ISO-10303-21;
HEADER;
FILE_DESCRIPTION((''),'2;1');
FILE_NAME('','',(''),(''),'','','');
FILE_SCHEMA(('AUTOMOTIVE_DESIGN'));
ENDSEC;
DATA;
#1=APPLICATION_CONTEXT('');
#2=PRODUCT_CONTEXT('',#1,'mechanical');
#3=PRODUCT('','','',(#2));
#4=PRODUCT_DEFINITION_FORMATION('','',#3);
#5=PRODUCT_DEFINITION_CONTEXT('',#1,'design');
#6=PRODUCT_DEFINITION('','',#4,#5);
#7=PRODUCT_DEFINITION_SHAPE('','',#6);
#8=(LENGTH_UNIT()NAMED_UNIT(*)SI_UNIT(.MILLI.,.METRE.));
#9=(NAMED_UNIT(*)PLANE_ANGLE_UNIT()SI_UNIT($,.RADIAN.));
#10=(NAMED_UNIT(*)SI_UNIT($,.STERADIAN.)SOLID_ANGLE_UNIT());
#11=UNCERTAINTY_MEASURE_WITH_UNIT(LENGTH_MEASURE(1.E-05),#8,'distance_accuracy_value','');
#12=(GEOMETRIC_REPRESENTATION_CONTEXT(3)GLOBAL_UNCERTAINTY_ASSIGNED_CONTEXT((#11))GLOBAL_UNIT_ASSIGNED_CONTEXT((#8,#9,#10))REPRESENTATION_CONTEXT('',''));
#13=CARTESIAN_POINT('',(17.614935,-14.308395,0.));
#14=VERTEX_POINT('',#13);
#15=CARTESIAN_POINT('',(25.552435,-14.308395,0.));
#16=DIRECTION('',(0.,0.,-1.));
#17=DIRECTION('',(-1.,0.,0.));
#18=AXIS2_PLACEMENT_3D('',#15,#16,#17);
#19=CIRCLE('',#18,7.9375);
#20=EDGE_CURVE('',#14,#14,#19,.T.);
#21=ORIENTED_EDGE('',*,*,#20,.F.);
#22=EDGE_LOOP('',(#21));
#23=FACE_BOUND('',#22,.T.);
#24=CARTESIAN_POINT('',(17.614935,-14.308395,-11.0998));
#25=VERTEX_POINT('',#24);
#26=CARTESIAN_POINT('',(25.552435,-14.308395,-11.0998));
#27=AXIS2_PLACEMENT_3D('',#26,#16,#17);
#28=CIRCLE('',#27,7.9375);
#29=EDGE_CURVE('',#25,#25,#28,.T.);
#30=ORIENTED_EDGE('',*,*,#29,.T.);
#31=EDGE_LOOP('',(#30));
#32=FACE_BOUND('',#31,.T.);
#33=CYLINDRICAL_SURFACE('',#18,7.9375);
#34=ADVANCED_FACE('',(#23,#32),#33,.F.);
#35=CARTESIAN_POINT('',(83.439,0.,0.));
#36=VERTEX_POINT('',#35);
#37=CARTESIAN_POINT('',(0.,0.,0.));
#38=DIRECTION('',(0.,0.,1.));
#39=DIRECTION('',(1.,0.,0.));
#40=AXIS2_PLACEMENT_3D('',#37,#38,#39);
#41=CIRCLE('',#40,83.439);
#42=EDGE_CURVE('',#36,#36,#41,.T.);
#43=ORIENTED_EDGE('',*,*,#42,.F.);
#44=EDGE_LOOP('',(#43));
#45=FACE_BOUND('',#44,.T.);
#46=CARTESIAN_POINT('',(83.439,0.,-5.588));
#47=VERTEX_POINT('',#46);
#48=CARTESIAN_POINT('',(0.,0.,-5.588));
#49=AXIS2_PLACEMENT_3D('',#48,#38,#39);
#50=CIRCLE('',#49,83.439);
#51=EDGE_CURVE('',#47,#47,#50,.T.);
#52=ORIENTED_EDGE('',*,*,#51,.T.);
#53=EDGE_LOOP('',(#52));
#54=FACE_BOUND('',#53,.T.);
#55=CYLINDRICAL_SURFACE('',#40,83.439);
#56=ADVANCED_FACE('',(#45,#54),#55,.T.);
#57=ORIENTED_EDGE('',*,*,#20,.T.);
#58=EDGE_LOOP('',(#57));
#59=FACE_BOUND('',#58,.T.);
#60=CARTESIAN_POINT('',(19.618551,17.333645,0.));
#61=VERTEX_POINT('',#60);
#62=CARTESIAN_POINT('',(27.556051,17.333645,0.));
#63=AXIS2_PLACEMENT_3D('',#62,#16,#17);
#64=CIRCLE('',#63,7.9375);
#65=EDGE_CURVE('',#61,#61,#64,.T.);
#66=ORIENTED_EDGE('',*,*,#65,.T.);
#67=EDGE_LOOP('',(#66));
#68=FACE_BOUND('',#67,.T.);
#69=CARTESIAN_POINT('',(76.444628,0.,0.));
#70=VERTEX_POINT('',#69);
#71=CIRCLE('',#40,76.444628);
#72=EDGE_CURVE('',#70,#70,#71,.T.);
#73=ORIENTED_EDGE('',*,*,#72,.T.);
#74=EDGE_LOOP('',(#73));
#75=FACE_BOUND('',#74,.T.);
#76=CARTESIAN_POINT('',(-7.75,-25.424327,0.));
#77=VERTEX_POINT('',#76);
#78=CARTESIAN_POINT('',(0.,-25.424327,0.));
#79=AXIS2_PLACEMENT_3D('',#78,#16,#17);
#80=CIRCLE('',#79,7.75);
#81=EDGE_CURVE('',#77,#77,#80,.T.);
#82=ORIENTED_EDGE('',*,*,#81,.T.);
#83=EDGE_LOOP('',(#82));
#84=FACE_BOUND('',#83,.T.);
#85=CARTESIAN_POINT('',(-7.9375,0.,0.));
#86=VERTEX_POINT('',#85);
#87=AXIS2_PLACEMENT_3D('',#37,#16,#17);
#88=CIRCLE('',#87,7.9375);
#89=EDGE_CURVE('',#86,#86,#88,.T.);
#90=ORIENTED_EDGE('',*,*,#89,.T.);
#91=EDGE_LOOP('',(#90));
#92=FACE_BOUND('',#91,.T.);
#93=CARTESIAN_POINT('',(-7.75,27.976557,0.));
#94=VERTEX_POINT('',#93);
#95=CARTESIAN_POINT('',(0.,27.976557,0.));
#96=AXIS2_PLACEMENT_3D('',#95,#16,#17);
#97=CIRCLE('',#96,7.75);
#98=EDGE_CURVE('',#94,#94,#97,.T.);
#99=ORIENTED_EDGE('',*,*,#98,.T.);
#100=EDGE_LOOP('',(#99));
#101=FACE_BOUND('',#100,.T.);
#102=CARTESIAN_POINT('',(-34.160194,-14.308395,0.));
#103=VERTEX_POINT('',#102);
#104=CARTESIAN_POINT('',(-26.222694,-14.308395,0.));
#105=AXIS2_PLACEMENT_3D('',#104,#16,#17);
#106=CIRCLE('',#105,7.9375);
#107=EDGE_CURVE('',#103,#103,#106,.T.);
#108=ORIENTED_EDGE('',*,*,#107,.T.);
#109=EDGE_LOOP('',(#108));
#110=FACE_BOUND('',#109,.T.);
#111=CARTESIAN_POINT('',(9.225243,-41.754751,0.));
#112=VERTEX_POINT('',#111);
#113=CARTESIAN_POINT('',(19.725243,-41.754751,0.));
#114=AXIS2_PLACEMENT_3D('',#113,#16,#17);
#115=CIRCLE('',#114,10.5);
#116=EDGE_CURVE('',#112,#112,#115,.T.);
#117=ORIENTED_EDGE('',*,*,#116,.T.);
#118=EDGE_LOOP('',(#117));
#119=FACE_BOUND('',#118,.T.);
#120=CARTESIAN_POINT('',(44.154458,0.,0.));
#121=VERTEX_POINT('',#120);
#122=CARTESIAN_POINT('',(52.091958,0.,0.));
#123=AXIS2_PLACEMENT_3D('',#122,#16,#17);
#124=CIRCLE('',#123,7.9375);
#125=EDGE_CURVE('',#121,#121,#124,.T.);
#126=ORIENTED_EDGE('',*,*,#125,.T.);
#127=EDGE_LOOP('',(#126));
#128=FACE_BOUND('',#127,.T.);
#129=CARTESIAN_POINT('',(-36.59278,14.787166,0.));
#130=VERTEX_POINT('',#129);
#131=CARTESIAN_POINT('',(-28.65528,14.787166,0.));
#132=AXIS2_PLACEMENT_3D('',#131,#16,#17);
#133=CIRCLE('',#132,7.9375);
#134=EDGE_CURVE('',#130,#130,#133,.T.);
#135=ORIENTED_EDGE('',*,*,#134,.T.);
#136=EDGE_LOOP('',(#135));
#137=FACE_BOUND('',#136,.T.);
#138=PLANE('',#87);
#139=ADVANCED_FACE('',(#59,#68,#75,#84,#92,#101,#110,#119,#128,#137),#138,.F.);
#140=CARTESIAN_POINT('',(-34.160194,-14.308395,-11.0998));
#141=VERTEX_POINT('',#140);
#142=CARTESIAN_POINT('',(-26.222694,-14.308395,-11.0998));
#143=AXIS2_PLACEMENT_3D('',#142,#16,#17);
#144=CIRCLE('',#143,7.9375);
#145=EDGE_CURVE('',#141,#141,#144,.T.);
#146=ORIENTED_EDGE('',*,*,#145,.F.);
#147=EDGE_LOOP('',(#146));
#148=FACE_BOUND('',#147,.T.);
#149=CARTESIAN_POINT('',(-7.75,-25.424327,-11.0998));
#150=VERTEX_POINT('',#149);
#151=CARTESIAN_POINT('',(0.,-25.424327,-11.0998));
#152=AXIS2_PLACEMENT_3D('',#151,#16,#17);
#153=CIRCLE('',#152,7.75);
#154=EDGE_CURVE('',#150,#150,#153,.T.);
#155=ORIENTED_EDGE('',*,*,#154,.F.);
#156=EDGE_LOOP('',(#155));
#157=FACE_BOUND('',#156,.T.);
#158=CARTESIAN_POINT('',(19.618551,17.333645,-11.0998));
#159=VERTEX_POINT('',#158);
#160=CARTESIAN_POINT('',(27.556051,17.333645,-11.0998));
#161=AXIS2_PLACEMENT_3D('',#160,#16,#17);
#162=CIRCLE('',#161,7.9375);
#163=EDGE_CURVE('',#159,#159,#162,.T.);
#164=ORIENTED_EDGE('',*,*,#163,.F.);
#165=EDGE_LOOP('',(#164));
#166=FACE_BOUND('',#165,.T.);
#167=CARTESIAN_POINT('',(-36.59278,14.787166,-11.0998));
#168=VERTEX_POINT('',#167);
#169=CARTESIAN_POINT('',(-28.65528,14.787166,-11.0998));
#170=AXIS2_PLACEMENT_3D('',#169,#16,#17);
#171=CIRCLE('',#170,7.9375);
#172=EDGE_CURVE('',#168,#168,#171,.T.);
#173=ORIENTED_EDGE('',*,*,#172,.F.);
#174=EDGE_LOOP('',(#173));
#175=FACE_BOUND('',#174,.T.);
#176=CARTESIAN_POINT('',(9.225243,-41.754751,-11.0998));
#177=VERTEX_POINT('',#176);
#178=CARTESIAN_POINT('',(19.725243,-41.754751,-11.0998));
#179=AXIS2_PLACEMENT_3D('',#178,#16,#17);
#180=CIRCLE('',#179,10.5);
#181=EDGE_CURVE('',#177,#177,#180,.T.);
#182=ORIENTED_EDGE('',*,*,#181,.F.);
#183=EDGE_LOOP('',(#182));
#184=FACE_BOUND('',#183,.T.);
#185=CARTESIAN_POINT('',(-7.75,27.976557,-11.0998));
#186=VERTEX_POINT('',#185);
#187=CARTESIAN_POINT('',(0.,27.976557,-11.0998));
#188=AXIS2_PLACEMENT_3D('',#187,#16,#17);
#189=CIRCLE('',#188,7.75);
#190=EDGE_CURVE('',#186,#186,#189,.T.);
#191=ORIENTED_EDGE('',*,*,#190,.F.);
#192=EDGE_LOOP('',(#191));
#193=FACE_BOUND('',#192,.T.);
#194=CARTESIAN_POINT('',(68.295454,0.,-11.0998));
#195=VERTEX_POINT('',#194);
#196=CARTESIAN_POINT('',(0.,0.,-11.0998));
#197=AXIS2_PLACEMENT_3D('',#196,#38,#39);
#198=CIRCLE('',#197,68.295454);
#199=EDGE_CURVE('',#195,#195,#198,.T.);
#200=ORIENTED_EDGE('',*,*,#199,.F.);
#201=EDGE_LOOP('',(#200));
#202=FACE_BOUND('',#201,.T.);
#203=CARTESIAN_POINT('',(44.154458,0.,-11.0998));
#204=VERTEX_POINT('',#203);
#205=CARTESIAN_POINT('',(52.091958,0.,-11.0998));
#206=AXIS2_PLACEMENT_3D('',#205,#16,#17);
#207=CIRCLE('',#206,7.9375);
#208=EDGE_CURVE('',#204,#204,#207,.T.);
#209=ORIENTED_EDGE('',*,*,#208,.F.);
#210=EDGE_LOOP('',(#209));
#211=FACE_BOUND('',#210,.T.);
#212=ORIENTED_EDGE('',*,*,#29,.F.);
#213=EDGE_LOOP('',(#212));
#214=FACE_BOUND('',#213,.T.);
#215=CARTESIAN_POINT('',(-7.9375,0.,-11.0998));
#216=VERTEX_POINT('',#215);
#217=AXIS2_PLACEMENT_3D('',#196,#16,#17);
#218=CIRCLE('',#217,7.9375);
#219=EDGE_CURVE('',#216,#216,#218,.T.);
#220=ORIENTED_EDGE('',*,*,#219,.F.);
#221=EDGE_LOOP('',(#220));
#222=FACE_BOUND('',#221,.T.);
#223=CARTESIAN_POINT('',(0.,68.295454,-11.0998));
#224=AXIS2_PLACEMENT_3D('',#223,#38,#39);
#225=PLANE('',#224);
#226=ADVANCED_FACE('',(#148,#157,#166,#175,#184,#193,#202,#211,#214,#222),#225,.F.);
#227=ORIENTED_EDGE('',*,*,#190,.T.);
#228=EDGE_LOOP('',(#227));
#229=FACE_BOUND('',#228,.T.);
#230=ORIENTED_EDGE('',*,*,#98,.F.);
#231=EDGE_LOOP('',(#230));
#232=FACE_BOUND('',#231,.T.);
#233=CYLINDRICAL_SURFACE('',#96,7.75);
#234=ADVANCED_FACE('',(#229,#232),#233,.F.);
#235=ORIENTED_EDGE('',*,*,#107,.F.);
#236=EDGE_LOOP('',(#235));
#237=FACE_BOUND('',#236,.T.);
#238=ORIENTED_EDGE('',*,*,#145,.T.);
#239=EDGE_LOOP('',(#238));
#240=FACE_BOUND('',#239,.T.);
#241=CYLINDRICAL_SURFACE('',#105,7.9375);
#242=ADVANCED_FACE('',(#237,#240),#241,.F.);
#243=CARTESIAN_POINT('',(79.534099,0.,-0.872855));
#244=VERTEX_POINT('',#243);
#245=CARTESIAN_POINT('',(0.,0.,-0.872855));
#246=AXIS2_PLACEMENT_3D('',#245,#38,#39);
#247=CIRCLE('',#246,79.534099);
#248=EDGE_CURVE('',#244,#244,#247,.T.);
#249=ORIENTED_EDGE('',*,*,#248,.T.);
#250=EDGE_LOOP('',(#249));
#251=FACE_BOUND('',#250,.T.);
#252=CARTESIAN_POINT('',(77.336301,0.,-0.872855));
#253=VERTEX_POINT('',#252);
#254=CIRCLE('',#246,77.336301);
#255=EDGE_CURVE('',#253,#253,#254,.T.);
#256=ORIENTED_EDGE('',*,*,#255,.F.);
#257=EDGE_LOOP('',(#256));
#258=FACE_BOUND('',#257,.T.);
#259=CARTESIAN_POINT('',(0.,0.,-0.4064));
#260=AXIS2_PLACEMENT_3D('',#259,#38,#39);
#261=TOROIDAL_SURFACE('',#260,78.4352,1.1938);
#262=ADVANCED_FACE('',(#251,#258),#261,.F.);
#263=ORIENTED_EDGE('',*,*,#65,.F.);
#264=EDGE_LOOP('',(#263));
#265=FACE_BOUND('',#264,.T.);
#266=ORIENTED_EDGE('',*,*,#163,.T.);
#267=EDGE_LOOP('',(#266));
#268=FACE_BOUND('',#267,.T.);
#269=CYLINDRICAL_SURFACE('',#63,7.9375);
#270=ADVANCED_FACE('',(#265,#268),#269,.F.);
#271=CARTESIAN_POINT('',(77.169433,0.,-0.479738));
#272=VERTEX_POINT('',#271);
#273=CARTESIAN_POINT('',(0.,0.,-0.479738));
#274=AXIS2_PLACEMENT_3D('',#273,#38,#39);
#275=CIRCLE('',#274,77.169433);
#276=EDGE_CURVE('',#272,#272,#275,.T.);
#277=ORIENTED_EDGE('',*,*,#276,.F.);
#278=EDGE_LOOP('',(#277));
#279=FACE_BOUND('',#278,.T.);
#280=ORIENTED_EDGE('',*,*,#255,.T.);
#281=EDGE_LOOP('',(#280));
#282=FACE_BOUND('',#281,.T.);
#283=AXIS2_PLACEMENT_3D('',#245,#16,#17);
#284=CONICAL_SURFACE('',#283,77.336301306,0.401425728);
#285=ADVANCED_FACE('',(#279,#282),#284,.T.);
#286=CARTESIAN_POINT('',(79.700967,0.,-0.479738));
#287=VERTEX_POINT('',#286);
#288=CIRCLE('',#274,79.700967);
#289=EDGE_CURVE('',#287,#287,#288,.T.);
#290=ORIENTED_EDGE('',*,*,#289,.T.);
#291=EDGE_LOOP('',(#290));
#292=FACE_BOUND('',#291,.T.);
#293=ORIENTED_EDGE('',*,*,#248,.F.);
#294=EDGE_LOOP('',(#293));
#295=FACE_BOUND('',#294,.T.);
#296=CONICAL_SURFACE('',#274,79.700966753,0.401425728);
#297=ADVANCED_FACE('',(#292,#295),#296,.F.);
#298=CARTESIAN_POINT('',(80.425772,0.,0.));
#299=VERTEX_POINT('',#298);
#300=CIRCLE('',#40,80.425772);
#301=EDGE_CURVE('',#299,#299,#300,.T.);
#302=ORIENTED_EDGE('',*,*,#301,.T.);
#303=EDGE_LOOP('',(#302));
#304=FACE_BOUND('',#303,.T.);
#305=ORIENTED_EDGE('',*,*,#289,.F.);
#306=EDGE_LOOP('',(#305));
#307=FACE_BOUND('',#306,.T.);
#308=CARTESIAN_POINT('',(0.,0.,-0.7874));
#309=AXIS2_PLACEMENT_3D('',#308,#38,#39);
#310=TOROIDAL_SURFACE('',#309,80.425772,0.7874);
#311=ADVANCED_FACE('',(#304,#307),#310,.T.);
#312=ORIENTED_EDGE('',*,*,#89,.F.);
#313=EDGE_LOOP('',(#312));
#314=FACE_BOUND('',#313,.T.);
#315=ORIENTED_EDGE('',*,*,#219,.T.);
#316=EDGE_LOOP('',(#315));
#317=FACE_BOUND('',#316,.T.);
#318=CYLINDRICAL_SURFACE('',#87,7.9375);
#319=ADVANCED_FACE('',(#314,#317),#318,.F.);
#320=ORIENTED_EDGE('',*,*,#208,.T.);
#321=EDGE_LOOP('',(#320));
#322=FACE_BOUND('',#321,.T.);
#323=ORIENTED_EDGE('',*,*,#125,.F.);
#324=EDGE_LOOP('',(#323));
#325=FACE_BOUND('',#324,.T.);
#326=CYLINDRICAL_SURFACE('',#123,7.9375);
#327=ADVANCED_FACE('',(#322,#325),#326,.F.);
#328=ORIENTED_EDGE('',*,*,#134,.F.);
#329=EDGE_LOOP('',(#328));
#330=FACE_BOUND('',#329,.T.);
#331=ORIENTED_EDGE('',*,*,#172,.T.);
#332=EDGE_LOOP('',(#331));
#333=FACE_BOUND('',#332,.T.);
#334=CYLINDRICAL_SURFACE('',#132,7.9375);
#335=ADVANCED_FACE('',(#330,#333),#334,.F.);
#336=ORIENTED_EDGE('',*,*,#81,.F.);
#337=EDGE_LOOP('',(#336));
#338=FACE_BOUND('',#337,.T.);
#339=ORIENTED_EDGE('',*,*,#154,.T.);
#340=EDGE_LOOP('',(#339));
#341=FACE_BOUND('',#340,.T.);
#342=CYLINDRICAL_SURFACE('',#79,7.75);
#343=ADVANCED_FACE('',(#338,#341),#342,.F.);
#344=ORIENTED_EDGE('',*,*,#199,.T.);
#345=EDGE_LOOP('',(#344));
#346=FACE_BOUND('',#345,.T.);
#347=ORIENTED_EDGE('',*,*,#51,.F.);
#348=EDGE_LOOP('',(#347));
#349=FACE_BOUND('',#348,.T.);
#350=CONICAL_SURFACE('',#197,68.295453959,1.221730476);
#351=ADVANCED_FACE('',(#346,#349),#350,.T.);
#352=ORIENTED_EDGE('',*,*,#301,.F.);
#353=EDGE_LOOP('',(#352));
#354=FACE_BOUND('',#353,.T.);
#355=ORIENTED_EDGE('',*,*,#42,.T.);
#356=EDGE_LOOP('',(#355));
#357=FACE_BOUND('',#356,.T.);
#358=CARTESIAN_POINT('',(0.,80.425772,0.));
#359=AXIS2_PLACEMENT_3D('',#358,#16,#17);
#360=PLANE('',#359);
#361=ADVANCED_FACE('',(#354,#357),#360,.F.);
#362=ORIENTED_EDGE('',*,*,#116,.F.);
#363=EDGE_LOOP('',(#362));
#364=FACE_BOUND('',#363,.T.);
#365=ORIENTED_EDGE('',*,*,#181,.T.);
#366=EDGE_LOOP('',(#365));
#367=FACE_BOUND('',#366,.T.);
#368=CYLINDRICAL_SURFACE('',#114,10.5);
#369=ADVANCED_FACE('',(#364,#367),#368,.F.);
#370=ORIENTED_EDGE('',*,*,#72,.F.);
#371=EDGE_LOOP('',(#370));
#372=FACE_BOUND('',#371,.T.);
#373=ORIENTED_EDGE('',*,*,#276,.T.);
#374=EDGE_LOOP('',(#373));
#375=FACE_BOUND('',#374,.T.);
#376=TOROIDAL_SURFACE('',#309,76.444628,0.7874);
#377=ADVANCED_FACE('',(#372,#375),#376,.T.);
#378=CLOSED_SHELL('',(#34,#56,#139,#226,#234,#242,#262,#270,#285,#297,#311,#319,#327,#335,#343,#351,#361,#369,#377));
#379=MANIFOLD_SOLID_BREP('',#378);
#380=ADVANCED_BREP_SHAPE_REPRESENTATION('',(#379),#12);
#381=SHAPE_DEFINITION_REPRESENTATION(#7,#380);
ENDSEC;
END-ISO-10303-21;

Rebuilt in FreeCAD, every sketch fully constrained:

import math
import FreeCAD as App
import Part
import Sketcher

V = App.Vector
Q = App.Units.Quantity

doc = App.newDocument("Part")
body = doc.addObject("PartDesign::Body", "Body")

sketch1 = body.newObject("Sketcher::SketchObject", "Sketch")
sketch1.AttachmentSupport = (doc.getObject("YZ_Plane"), [""])
sketch1.MapMode = "FlatFace"
sketch1.addGeometry([
    Part.LineSegment(V(76.44, 0, 0), V(0, 0, 0)),
    Part.LineSegment(V(0, 0, 0), V(0, -11.1, 0)),
    Part.LineSegment(V(0, -11.1, 0), V(68.3, -11.1, 0)),
    Part.LineSegment(V(68.3, -11.1, 0), V(83.44, -5.59, 0)),
    Part.LineSegment(V(83.44, -5.59, 0), V(83.44, 0, 0)),
    Part.LineSegment(V(83.44, 0, 0), V(80.43, 0, 0)),
    Part.ArcOfCircle(Part.Circle(V(80.43, -0.79, 0), V(0, 0, 1), 0.79), math.radians(90), math.radians(157)),
    Part.LineSegment(V(79.7, -0.48, 0), V(79.53, -0.87, 0)),
    Part.ArcOfCircle(Part.Circle(V(78.44, -0.41, 0), V(0, 0, 1), 1.19), math.radians(-157), math.radians(-23)),
    Part.LineSegment(V(77.34, -0.87, 0), V(77.17, -0.48, 0)),
    Part.ArcOfCircle(Part.Circle(V(76.44, -0.79, 0), V(0, 0, 1), 0.79), math.radians(23), math.radians(90)),
], False)
sketch1.addConstraint([
    Sketcher.Constraint("Coincident", 0, 2, 1, 1),
    Sketcher.Constraint("Coincident", 1, 2, 2, 1),
    Sketcher.Constraint("Coincident", 2, 2, 3, 1),
    Sketcher.Constraint("Coincident", 3, 2, 4, 1),
    Sketcher.Constraint("Coincident", 4, 2, 5, 1),
    Sketcher.Constraint("Tangent", 5, 2, 6, 1),
    Sketcher.Constraint("Tangent", 6, 2, 7, 1),
    Sketcher.Constraint("Tangent", 7, 2, 8, 2),
    Sketcher.Constraint("Tangent", 8, 1, 9, 1),
    Sketcher.Constraint("Tangent", 9, 2, 10, 1),
    Sketcher.Constraint("Tangent", 10, 2, 0, 1),
    Sketcher.Constraint("Horizontal", 0),
    Sketcher.Constraint("Vertical", 1),
    Sketcher.Constraint("Horizontal", 2),
    Sketcher.Constraint("Vertical", 4),
    Sketcher.Constraint("Horizontal", 5),
    Sketcher.Constraint("Coincident", 0, 2, -1, 1),
    Sketcher.Constraint("Equal", 6, 10),
    Sketcher.Constraint("PointOnObject", 4, 2, -1),
    Sketcher.Constraint("Horizontal", 7, 2, 8, 1),
    Sketcher.Constraint("Angle", 3, Q("20 deg")),
    Sketcher.Constraint("Angle", 7, Q("-113 deg")),
    Sketcher.Constraint("Radius", 6, Q("0.031 in")),
    Sketcher.Constraint("Radius", 8, Q("0.047 in")),
    Sketcher.Constraint("DistanceY", 4, 1, 4, 2, Q("0.22 in")),
    Sketcher.Constraint("DistanceY", 1, 2, 1, 1, Q("0.437 in")),
    Sketcher.Constraint("DistanceX", -1, 1, 8, 3, Q("3.088 in")),
    Sketcher.Constraint("DistanceY", 8, 3, -1, 1, Q("0.016 in")),
    Sketcher.Constraint("DistanceX", -1, 1, 3, 2, Q("3.285 in")),
])
revolution = body.newObject("PartDesign::Revolution", "Revolution")
revolution.Profile = sketch1
revolution.ReferenceAxis = (sketch1, ["V_Axis"])
revolution.Angle = 360

sketch2 = body.newObject("Sketcher::SketchObject", "Sketch001")
sketch2.AttachmentSupport = (doc.getObject("XY_Plane"), [""])
sketch2.MapMode = "FlatFace"
sketch2.AttachmentOffset = App.Placement(V(0, 0, -0.437 * 25.4), App.Rotation())
sketch2.addGeometry([
    Part.Circle(V(0, 0, 0), V(0, 0, 1), 8),
    Part.Circle(V(0, 28, 0), V(0, 0, 1), 8),
    Part.Circle(V(26, -14, 0), V(0, 0, 1), 8),
    Part.Circle(V(52, 0, 0), V(0, 0, 1), 8),
    Part.Circle(V(-26, -14, 0), V(0, 0, 1), 8),
    Part.Circle(V(28, 17, 0), V(0, 0, 1), 8),
    Part.Circle(V(-29, 15, 0), V(0, 0, 1), 8),
    Part.Circle(V(0, -25, 0), V(0, 0, 1), 8),
    Part.Circle(V(20, -42, 0), V(0, 0, 1), 10),
], False)
sketch2.addConstraint([
    Sketcher.Constraint("Coincident", 0, 3, -1, 1),
    Sketcher.Constraint("Equal", 0, 2),
    Sketcher.Constraint("Equal", 2, 3),
    Sketcher.Constraint("Equal", 3, 4),
    Sketcher.Constraint("Equal", 4, 5),
    Sketcher.Constraint("Equal", 5, 6),
    Sketcher.Constraint("Equal", 1, 7),
    Sketcher.Constraint("PointOnObject", 1, 3, -2),
    Sketcher.Constraint("PointOnObject", 3, 3, -1),
    Sketcher.Constraint("PointOnObject", 7, 3, -2),
    Sketcher.Constraint("Horizontal", 2, 3, 4, 3),
    Sketcher.Constraint("Diameter", 0, Q("0.625 in")),
    Sketcher.Constraint("Diameter", 1, Q("15.5 mm")),
    Sketcher.Constraint("Diameter", 8, Q("21 mm")),
    Sketcher.Constraint("DistanceX", -1, 1, 3, 3, Q("52.091958 mm")),
    Sketcher.Constraint("DistanceX", -1, 1, 5, 3, Q("27.556051 mm")),
    Sketcher.Constraint("DistanceX", 6, 3, -1, 1, Q("28.65528 mm")),
    Sketcher.Constraint("DistanceY", 8, 3, -1, 1, Q("41.754751 mm")),
    Sketcher.Constraint("DistanceY", 2, 3, 1, 3, Q("42.284952 mm")),
    Sketcher.Constraint("DistanceX", 4, 3, 2, 3, Q("51.775128 mm")),
    Sketcher.Constraint("DistanceX", 4, 3, 3, 3, Q("78.314652 mm")),
    Sketcher.Constraint("DistanceY", 5, 3, 1, 3, Q("10.642912 mm")),
    Sketcher.Constraint("DistanceY", 4, 3, 6, 3, Q("29.09556 mm")),
    Sketcher.Constraint("DistanceY", 7, 3, 5, 3, Q("42.757972 mm")),
    Sketcher.Constraint("DistanceX", 8, 3, 2, 3, Q("5.827191 mm")),
    Sketcher.Constraint("DistanceY", -1, 1, 1, 3, Q("27.976557 mm")),
])
pocket1 = body.newObject("PartDesign::Pocket", "Pocket")
pocket1.Profile = sketch2
pocket1.Type = "ThroughAll"
pocket1.Reversed = True

doc.recompute()
